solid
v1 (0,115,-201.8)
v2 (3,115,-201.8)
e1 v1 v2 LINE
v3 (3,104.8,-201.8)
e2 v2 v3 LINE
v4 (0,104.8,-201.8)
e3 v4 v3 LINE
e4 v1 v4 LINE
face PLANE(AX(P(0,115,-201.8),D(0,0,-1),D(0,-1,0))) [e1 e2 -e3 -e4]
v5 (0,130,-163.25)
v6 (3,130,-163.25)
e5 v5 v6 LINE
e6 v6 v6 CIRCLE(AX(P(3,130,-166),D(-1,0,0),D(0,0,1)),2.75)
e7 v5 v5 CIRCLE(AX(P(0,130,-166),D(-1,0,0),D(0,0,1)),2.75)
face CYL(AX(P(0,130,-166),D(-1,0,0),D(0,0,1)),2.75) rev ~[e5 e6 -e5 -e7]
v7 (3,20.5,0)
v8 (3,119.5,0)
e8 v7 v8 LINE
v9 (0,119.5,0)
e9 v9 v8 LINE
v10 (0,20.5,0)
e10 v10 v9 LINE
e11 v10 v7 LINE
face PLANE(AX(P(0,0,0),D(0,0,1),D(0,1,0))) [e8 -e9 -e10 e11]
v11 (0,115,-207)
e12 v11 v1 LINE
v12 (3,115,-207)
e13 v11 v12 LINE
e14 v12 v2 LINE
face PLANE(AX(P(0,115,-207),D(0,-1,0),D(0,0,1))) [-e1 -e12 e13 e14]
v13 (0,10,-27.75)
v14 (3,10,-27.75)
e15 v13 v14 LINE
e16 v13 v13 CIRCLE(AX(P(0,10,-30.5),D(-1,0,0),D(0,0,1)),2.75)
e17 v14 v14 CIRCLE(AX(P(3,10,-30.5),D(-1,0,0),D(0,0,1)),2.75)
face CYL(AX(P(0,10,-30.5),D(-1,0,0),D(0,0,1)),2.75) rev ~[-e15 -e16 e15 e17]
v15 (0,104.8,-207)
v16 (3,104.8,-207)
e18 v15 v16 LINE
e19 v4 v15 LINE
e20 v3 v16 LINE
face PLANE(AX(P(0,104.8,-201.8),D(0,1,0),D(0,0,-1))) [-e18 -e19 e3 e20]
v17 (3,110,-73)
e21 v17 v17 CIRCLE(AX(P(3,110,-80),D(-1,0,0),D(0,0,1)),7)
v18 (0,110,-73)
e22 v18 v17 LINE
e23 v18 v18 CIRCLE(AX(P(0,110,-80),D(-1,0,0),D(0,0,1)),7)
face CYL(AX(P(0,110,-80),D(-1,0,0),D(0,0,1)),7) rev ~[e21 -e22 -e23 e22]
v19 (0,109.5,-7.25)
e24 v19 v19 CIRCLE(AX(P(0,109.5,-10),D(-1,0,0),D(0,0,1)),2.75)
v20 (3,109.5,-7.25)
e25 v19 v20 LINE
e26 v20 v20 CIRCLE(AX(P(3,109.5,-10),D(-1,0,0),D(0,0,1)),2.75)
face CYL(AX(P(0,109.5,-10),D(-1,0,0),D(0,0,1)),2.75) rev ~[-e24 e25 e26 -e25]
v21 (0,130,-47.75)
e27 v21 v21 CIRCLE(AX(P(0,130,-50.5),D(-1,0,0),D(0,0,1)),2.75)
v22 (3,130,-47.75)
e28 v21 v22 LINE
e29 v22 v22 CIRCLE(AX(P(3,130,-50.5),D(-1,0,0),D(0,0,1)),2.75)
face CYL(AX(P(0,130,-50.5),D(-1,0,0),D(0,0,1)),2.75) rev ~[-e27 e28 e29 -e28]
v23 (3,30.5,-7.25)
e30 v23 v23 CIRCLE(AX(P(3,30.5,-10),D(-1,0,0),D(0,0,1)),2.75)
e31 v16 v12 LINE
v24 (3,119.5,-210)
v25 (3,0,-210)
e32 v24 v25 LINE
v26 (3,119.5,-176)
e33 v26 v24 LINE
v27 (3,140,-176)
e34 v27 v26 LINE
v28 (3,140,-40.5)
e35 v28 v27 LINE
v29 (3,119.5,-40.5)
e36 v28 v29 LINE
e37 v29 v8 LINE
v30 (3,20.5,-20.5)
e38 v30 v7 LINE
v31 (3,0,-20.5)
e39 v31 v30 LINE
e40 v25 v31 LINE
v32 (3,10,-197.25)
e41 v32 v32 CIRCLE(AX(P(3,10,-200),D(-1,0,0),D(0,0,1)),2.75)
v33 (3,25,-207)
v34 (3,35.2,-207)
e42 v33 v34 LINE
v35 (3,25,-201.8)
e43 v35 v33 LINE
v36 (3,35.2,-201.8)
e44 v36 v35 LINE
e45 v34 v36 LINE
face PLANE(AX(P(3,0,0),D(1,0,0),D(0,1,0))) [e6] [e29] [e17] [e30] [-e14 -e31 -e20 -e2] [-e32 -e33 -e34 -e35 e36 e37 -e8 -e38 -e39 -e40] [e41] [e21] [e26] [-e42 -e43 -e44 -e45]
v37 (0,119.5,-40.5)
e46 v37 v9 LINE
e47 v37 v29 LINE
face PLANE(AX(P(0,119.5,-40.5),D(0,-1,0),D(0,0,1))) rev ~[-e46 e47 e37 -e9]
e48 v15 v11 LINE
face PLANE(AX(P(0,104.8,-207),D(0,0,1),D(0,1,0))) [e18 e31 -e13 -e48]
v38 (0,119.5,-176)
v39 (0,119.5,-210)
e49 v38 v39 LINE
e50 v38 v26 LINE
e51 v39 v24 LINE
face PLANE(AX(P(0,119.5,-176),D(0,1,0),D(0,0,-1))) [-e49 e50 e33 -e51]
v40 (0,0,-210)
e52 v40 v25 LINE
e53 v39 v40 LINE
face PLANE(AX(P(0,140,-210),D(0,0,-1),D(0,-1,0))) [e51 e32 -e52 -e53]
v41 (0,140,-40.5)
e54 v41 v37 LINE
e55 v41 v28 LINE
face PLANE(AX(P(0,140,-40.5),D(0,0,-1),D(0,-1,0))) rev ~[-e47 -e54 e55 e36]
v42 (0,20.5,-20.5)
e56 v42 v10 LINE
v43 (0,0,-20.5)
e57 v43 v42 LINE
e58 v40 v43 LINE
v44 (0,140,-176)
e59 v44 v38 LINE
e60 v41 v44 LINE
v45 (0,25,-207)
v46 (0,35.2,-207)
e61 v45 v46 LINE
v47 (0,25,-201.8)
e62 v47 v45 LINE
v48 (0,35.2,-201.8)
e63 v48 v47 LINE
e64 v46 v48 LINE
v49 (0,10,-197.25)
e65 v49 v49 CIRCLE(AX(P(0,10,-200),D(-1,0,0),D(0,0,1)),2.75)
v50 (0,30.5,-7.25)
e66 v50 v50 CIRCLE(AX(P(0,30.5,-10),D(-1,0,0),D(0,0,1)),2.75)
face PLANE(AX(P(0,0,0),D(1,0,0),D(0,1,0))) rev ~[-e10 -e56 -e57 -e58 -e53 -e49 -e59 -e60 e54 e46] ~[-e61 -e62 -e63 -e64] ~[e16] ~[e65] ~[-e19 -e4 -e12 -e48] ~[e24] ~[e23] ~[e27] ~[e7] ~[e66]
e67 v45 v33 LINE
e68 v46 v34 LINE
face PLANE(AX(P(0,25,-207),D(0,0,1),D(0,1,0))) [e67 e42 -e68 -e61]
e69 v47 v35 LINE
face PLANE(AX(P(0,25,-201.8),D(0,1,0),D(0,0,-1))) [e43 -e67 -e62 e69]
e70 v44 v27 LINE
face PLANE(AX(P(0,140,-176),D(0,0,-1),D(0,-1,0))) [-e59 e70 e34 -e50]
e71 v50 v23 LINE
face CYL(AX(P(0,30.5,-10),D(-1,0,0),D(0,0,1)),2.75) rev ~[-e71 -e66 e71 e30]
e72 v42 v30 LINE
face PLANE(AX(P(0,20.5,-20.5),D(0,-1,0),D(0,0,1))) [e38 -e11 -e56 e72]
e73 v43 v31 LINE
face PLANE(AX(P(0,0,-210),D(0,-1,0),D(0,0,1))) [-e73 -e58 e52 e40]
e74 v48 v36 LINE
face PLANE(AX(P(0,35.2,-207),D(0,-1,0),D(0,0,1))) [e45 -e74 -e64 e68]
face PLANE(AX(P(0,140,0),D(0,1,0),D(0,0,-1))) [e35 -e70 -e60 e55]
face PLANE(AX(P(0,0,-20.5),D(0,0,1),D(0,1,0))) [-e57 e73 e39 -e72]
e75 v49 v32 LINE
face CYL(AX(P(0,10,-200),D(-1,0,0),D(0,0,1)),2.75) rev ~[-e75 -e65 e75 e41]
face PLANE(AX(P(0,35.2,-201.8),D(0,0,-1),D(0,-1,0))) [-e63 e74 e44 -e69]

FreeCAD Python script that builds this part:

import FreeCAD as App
import Part
import Sketcher
Q = App.Units.Quantity


def add_polygon(sketch, points):
    """Adds a closed chain of lines whose ends are joined by coincident constraints."""
    first, n = sketch.GeometryCount, len(points)
    for a, b in zip(points, points[1:] + points[:1]):
        sketch.addGeometry(Part.LineSegment(App.Vector(*a, 0), App.Vector(*b, 0)), False)
    for i in range(n):
        sketch.addConstraint(Sketcher.Constraint("Coincident", first + i, 2, first + (i + 1) % n, 1))

doc = App.newDocument("Part")
body = doc.addObject("PartDesign::Body", "Body")

# Sketch on YZ plane
sketch1 = body.newObject("Sketcher::SketchObject", "Sketch")
sketch1.AttachmentSupport = (doc.getObject("YZ_Plane"), [""])
sketch1.MapMode = "FlatFace"
add_polygon(sketch1, [(140, 0), (0, 0), (0, -210), (140, -210)])  # lines 0-3
sketch1.addConstraint([
    Sketcher.Constraint("Horizontal", 0),
    Sketcher.Constraint("Vertical", 1),
    Sketcher.Constraint("Horizontal", 2),
    Sketcher.Constraint("Vertical", 3),
    Sketcher.Constraint("Coincident", 0, 2, -1, 1),
    Sketcher.Constraint("DistanceX", 0, 2, 0, 1, Q("140 mm")),
    Sketcher.Constraint("DistanceY", 1, 2, 1, 1, Q("210 mm")),
])
pad1 = body.newObject("PartDesign::Pad", "Pad")
pad1.Profile = sketch1
pad1.Length = 3

# Sketch on YZ plane
sketch2 = body.newObject("Sketcher::SketchObject", "Sketch001")
sketch2.AttachmentSupport = (doc.getObject("YZ_Plane"), [""])
sketch2.MapMode = "FlatFace"
add_polygon(sketch2, [(0, -20.5), (0, 0), (20.5, 0), (20.5, -20.5)])  # lines 0-3
add_polygon(sketch2, [(140, 0), (140, -40.5), (119.5, -40.5), (119.5, 0)])  # lines 4-7
add_polygon(sketch2, [(140, -176), (140, -210), (119.5, -210), (119.5, -176)])  # lines 8-11
sketch2.addConstraint([
    Sketcher.Constraint("Vertical", 0),
    Sketcher.Constraint("Horizontal", 1),
    Sketcher.Constraint("Vertical", 2),
    Sketcher.Constraint("Horizontal", 3),
    Sketcher.Constraint("Vertical", 4),
    Sketcher.Constraint("Horizontal", 5),
    Sketcher.Constraint("Vertical", 6),
    Sketcher.Constraint("Horizontal", 7),
    Sketcher.Constraint("Vertical", 8),
    Sketcher.Constraint("Horizontal", 9),
    Sketcher.Constraint("Vertical", 10),
    Sketcher.Constraint("Horizontal", 11),
    Sketcher.Constraint("Coincident", 0, 2, -1, 1),
    Sketcher.Constraint("PointOnObject", 6, 2, -1),
    Sketcher.Constraint("Vertical", 7, 2, 8, 2),
    Sketcher.Constraint("Vertical", 6, 2, 9, 2),
    Sketcher.Constraint("Equal", 3, 5),
    Sketcher.Constraint("Equal", 11, 0),
    Sketcher.Constraint("DistanceY", 8, 2, 8, 1, Q("34 mm")),
    Sketcher.Constraint("DistanceX", 1, 1, 1, 2, Q("20.5 mm")),
    Sketcher.Constraint("DistanceY", 4, 2, 4, 1, Q("40.5 mm")),
    Sketcher.Constraint("DistanceX", -1, 1, 4, 2, Q("140 mm")),
    Sketcher.Constraint("DistanceY", 8, 2, -1, 1, Q("210 mm")),
])
pocket1 = body.newObject("PartDesign::Pocket", "Pocket")
pocket1.Profile = sketch2
pocket1.Length = 3
pocket1.Reversed = True

# Sketch on YZ plane
sketch3 = body.newObject("Sketcher::SketchObject", "Sketch002")
sketch3.AttachmentSupport = (doc.getObject("YZ_Plane"), [""])
sketch3.MapMode = "FlatFace"
sketch3.addGeometry([
    Part.Circle(App.Vector(30.5, -10, 0), App.Vector(0, 0, 1), 2.75),  # 0
    Part.Circle(App.Vector(109.5, -10, 0), App.Vector(0, 0, 1), 2.75),  # 1
    Part.Circle(App.Vector(130, -50.5, 0), App.Vector(0, 0, 1), 2.75),  # 2
    Part.Circle(App.Vector(130, -166, 0), App.Vector(0, 0, 1), 2.75),  # 3
    Part.Circle(App.Vector(10, -200, 0), App.Vector(0, 0, 1), 2.75),  # 4
    Part.Circle(App.Vector(10, -30.5, 0), App.Vector(0, 0, 1), 2.75),  # 5
], False)
sketch3.addConstraint([
    Sketcher.Constraint("Equal", 0, 1),
    Sketcher.Constraint("Equal", 1, 2),
    Sketcher.Constraint("Equal", 2, 3),
    Sketcher.Constraint("Equal", 3, 4),
    Sketcher.Constraint("Equal", 4, 5),
    Sketcher.Constraint("Horizontal", 0, 3, 1, 3),
    Sketcher.Constraint("Vertical", 2, 3, 3, 3),
    Sketcher.Constraint("Vertical", 4, 3, 5, 3),
    Sketcher.Constraint("Diameter", 0, Q("5.5 mm")),
    Sketcher.Constraint("DistanceY", 0, 3, -1, 1, Q("10 mm")),
    Sketcher.Constraint("DistanceX", -1, 1, 4, 3, Q("10 mm")),
    Sketcher.Constraint("DistanceX", -1, 1, 2, 3, Q("130 mm")),
    Sketcher.Constraint("DistanceY", 3, 3, -1, 1, Q("166 mm")),
    Sketcher.Constraint("DistanceY", 4, 3, -1, 1, Q("200 mm")),
    Sketcher.Constraint("DistanceX", 0, 3, 1, 3, Q("79 mm")),
    Sketcher.Constraint("DistanceY", 2, 3, 5, 3, Q("20 mm")),
    Sketcher.Constraint("DistanceX", -1, 1, 0, 3, Q("30.5 mm")),
    Sketcher.Constraint("DistanceY", 2, 3, -1, 1, Q("50.5 mm")),
])
pocket2 = body.newObject("PartDesign::Pocket", "Pocket001")
pocket2.Profile = sketch3
pocket2.Length = 3
pocket2.Reversed = True

# Sketch on YZ plane
sketch4 = body.newObject("Sketcher::SketchObject", "Sketch003")
sketch4.AttachmentSupport = (doc.getObject("YZ_Plane"), [""])
sketch4.MapMode = "FlatFace"
add_polygon(sketch4, [(25, -207), (25, -201.8), (35.2, -201.8), (35.2, -207)])  # lines 0-3
add_polygon(sketch4, [(104.8, -207), (104.8, -201.8), (115, -201.8), (115, -207)])  # lines 4-7
sketch4.addConstraint([
    Sketcher.Constraint("Vertical", 0),
    Sketcher.Constraint("Horizontal", 1),
    Sketcher.Constraint("Vertical", 2),
    Sketcher.Constraint("Horizontal", 3),
    Sketcher.Constraint("Vertical", 4),
    Sketcher.Constraint("Horizontal", 5),
    Sketcher.Constraint("Vertical", 6),
    Sketcher.Constraint("Horizontal", 7),
    Sketcher.Constraint("Horizontal", 1, 2, 4, 2),
    Sketcher.Constraint("Horizontal", 3, 2, 6, 2),
    Sketcher.Constraint("Equal", 3, 5),
    Sketcher.Constraint("DistanceX", 1, 1, 1, 2, Q("10.2 mm")),
    Sketcher.Constraint("DistanceY", 0, 1, 0, 2, Q("5.2 mm")),
    Sketcher.Constraint("DistanceX", -1, 1, 0, 2, Q("25 mm")),
    Sketcher.Constraint("DistanceY", 2, 2, -1, 1, Q("207 mm")),
    Sketcher.Constraint("DistanceX", -1, 1, 5, 2, Q("115 mm")),
])
pocket3 = body.newObject("PartDesign::Pocket", "Pocket002")
pocket3.Profile = sketch4
pocket3.Length = 3
pocket3.Reversed = True

# Sketch on YZ plane
sketch5 = body.newObject("Sketcher::SketchObject", "Sketch004")
sketch5.AttachmentSupport = (doc.getObject("YZ_Plane"), [""])
sketch5.MapMode = "FlatFace"
sketch5.addGeometry(Part.Circle(App.Vector(110, -80, 0), App.Vector(0, 0, 1), 7), False)
sketch5.addConstraint([
    Sketcher.Constraint("Diameter", 0, Q("14 mm")),
    Sketcher.Constraint("DistanceY", 0, 3, -1, 1, Q("80 mm")),
    Sketcher.Constraint("DistanceX", -1, 1, 0, 3, Q("110 mm")),
])
pocket4 = body.newObject("PartDesign::Pocket", "Pocket003")
pocket4.Profile = sketch5
pocket4.Length = 3
pocket4.Reversed = True

doc.recompute()
